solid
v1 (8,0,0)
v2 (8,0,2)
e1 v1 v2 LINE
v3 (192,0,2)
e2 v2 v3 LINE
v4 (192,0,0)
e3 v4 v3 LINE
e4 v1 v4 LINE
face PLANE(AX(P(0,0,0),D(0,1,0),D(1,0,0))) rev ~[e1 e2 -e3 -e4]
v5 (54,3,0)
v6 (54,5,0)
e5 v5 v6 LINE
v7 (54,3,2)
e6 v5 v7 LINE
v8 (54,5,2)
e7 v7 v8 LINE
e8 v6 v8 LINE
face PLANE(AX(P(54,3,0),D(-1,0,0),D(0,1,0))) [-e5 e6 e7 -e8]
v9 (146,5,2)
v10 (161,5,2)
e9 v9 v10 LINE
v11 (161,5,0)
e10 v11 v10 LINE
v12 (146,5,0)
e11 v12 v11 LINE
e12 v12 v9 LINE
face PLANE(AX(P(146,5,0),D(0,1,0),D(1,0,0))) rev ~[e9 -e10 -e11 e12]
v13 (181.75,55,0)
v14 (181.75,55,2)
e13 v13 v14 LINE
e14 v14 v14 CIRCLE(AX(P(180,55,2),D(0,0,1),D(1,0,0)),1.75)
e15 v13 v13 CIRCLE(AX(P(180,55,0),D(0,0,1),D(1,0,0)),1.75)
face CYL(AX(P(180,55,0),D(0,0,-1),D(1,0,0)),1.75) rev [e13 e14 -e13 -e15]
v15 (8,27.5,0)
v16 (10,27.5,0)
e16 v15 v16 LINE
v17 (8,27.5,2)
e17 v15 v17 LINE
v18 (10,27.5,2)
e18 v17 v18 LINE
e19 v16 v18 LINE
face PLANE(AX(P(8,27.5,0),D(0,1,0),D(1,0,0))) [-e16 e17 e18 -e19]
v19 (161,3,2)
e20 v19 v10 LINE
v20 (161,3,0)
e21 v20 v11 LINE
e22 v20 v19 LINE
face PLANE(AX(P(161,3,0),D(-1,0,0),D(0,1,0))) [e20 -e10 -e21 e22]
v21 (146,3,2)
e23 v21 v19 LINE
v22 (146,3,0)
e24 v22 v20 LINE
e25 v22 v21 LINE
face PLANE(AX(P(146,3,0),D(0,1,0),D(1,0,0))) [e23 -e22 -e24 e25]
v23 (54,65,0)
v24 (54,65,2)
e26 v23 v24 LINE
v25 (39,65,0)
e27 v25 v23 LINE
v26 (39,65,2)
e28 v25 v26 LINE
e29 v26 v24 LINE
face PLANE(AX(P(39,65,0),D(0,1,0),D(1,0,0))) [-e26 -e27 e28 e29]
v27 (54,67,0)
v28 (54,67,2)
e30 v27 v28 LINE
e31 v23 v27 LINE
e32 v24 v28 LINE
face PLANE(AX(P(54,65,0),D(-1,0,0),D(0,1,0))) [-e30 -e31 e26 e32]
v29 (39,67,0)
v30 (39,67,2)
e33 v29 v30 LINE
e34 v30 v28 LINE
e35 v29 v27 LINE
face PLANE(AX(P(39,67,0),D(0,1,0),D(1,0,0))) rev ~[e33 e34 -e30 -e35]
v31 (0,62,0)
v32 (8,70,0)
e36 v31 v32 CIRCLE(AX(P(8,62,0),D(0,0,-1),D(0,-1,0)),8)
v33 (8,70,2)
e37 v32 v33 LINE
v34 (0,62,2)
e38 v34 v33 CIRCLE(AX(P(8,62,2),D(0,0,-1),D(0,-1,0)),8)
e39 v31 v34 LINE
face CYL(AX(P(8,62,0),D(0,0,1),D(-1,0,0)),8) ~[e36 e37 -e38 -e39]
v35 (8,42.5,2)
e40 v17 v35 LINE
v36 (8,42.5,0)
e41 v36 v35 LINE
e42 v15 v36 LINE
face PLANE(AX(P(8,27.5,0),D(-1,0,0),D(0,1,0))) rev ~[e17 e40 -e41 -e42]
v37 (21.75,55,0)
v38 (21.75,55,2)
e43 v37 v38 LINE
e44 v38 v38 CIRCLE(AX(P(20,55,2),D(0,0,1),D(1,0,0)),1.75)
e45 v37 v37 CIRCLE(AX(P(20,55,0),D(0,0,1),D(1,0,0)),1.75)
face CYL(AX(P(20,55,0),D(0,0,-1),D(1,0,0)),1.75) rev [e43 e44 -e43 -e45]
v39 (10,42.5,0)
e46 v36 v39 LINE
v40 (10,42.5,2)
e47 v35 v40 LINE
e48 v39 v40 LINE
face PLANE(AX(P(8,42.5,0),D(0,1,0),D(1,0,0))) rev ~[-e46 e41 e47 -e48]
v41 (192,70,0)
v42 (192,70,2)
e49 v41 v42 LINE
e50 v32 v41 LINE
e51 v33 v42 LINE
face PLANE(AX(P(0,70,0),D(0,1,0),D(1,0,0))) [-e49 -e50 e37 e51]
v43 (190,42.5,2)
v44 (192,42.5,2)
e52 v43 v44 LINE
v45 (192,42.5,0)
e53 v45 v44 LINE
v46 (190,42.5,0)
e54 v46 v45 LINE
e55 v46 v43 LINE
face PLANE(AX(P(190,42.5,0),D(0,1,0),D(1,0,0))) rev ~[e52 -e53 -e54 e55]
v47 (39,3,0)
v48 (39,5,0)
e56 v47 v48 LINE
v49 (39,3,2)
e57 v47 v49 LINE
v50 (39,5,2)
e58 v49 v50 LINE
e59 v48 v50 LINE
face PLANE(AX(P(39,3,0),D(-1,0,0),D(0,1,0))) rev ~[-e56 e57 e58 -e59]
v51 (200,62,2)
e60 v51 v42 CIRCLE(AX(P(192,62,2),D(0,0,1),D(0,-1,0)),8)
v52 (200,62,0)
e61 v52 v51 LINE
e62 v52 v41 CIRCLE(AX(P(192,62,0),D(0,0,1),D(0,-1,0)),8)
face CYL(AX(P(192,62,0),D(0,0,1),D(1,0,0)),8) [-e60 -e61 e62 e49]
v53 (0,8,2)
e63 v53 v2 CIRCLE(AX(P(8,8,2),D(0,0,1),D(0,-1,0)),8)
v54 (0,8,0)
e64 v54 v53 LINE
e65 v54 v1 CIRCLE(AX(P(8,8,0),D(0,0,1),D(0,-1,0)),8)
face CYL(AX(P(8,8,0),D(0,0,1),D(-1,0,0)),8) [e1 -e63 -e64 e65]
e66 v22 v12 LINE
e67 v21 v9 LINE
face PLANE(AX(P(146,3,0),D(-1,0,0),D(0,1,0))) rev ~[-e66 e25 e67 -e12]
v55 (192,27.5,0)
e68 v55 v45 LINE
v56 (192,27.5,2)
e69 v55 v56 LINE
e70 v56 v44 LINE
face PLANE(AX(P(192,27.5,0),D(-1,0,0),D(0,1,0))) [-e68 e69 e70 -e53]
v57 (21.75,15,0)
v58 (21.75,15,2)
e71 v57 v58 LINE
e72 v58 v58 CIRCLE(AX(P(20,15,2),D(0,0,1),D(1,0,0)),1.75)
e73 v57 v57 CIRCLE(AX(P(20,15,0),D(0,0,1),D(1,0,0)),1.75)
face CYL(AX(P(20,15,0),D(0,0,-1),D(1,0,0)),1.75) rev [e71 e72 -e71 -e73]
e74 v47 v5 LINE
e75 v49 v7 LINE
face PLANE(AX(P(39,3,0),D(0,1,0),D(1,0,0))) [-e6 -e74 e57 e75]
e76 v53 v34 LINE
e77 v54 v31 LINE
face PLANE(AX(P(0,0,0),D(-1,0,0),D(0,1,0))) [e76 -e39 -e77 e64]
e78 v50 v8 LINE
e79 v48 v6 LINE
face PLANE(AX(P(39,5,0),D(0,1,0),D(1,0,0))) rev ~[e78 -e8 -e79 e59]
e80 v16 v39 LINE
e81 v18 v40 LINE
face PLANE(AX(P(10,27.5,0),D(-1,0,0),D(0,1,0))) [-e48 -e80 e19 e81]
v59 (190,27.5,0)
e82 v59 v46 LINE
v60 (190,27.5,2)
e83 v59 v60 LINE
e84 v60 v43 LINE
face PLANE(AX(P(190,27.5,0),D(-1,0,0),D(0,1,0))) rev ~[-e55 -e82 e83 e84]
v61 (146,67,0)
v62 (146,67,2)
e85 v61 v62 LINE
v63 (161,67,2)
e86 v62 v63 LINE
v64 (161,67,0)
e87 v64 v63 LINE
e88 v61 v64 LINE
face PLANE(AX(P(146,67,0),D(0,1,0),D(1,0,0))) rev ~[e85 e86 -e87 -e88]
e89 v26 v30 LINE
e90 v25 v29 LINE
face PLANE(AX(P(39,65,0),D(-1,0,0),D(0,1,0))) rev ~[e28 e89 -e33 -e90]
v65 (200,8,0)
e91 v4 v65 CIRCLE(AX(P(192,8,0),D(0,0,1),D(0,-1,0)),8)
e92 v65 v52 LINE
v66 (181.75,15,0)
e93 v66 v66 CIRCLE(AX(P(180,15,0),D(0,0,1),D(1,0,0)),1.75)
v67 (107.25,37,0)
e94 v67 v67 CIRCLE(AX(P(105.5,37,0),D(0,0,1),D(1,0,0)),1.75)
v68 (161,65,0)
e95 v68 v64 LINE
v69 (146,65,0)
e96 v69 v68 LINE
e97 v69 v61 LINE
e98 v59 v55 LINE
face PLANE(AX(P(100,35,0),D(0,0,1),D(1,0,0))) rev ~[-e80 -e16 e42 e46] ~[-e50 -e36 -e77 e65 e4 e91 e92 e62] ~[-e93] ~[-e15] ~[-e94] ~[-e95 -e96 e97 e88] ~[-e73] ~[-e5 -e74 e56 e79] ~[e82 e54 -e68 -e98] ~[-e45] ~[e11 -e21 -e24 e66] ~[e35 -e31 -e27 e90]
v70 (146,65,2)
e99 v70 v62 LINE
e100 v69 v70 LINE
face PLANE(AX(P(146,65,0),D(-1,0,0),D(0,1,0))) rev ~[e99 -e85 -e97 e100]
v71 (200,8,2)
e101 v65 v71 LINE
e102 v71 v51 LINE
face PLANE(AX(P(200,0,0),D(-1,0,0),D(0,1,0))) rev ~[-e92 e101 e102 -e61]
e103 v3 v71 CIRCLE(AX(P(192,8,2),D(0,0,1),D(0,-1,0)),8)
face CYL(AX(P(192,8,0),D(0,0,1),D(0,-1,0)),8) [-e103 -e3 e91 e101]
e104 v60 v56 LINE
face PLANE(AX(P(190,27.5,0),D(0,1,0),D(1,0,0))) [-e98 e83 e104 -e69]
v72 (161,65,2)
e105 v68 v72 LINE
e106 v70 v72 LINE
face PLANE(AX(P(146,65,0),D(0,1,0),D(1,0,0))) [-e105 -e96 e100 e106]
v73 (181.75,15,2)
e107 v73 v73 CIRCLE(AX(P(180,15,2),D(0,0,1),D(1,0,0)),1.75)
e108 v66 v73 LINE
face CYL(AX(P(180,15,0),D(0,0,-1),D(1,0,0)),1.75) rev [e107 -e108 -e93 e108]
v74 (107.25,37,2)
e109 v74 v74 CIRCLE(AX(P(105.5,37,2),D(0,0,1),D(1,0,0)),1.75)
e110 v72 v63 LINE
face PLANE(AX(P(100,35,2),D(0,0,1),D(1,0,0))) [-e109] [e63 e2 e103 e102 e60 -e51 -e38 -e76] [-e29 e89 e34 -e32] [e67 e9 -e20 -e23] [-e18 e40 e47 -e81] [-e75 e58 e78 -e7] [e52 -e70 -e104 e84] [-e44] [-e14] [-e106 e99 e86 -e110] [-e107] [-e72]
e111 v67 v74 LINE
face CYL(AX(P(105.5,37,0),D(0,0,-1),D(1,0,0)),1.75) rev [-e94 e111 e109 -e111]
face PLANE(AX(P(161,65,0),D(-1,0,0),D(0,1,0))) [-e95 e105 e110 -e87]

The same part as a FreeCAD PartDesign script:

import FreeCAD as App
import Part
import Sketcher

V = App.Vector


def edges_at(feature, points):
    """Names of the edges that pass closest to the given points."""
    edges = feature.Shape.Edges
    near = lambda p: min(range(len(edges)), key=lambda i: edges[i].distToShape(Part.Vertex(*p))[0])
    return sorted({f"Edge{near(p) + 1}" for p in points})


def add_polygon(sketch, points):
    """Adds a closed chain of lines whose ends are joined by coincident constraints."""
    first, n = sketch.GeometryCount, len(points)
    for a, b in zip(points, points[1:] + points[:1]):
        sketch.addGeometry(Part.LineSegment(App.Vector(*a, 0), App.Vector(*b, 0)), False)
    for i in range(n):
        sketch.addConstraint(Sketcher.Constraint("Coincident", first + i, 2, first + (i + 1) % n, 1))

doc = App.newDocument("Part")
body = doc.addObject("PartDesign::Body", "Body")

# Sketch on XY plane
sketch1 = doc.addObject("Sketcher::SketchObject", "Sketch")
body.addObject(sketch1)
sketch1.AttachmentSupport = (doc.XY_Plane, [""])
sketch1.MapMode = "FlatFace"
add_polygon(sketch1, [(0, 70), (0, 0), (200, 0), (200, 70)])  # lines 0-3
sketch1.addConstraint([
    Sketcher.Constraint("Vertical", 0),
    Sketcher.Constraint("Horizontal", 1),
    Sketcher.Constraint("Vertical", 2),
    Sketcher.Constraint("Horizontal", 3),
    Sketcher.Constraint("Coincident", 0, 2, -1, 1),
    Sketcher.Constraint("DistanceX", 1, 1, 1, 2, 200.0),
    Sketcher.Constraint("DistanceY", 0, 2, 0, 1, 70.0),
])
pad1 = doc.addObject("PartDesign::Pad", "Pad")
body.addObject(pad1)
pad1.Profile = sketch1
pad1.Length = 2
doc.recompute()

fillet = doc.addObject("PartDesign::Fillet", "Fillet")
body.addObject(fillet)
fillet.Base = (pad1, edges_at(pad1, [
    (0, 70, 1),
    (200, 70, 1),
    (0, 0, 1),
    (200, 0, 1),
]))
fillet.Radius = 8

# Sketch on XY plane
sketch2 = doc.addObject("Sketcher::SketchObject", "Sketch001")
body.addObject(sketch2)
sketch2.AttachmentSupport = (doc.XY_Plane, [""])
sketch2.MapMode = "FlatFace"
sketch2.addGeometry(Part.Circle(V(20, 55, 0), V(0, 0, 1), 1.75), False)  # 0
sketch2.addGeometry(Part.Circle(V(20, 15, 0), V(0, 0, 1), 1.75), False)  # 1
sketch2.addGeometry(Part.Circle(V(180, 55, 0), V(0, 0, 1), 1.75), False)  # 2
sketch2.addGeometry(Part.Circle(V(180, 15, 0), V(0, 0, 1), 1.75), False)  # 3
sketch2.addGeometry(Part.Circle(V(105.5, 37, 0), V(0, 0, 1), 1.75), False)  # 4
add_polygon(sketch2, [(39, 67), (39, 65), (54, 65), (54, 67)])  # lines 5-8
add_polygon(sketch2, [(39, 5), (39, 3), (54, 3), (54, 5)])  # lines 9-12
add_polygon(sketch2, [(146, 67), (146, 65), (161, 65), (161, 67)])  # lines 13-16
add_polygon(sketch2, [(146, 5), (146, 3), (161, 3), (161, 5)])  # lines 17-20
add_polygon(sketch2, [(8, 42.5), (8, 27.5), (10, 27.5), (10, 42.5)])  # lines 21-24
add_polygon(sketch2, [(190, 42.5), (190, 27.5), (192, 27.5), (192, 42.5)])  # lines 25-28
sketch2.addConstraint([
    Sketcher.Constraint("Vertical", 5),
    Sketcher.Constraint("Horizontal", 6),
    Sketcher.Constraint("Vertical", 7),
    Sketcher.Constraint("Horizontal", 8),
    Sketcher.Constraint("Vertical", 9),
    Sketcher.Constraint("Horizontal", 10),
    Sketcher.Constraint("Vertical", 11),
    Sketcher.Constraint("Horizontal", 12),
    Sketcher.Constraint("Vertical", 13),
    Sketcher.Constraint("Horizontal", 14),
    Sketcher.Constraint("Vertical", 15),
    Sketcher.Constraint("Horizontal", 16),
    Sketcher.Constraint("Vertical", 17),
    Sketcher.Constraint("Horizontal", 18),
    Sketcher.Constraint("Vertical", 19),
    Sketcher.Constraint("Horizontal", 20),
    Sketcher.Constraint("Vertical", 21),
    Sketcher.Constraint("Horizontal", 22),
    Sketcher.Constraint("Vertical", 23),
    Sketcher.Constraint("Horizontal", 24),
    Sketcher.Constraint("Vertical", 25),
    Sketcher.Constraint("Horizontal", 26),
    Sketcher.Constraint("Vertical", 27),
    Sketcher.Constraint("Horizontal", 28),
    Sketcher.Constraint("Equal", 0, 1),
    Sketcher.Constraint("Equal", 1, 2),
    Sketcher.Constraint("Equal", 2, 3),
    Sketcher.Constraint("Equal", 3, 4),
    Sketcher.Constraint("Horizontal", 0, 3, 2, 3),
    Sketcher.Constraint("Horizontal", 1, 3, 3, 3),
    Sketcher.Constraint("Horizontal", 6, 2, 13, 2),
    Sketcher.Constraint("Horizontal", 8, 2, 15, 2),
    Sketcher.Constraint("Horizontal", 10, 2, 17, 2),
    Sketcher.Constraint("Horizontal", 12, 2, 19, 2),
    Sketcher.Constraint("Horizontal", 22, 2, 25, 2),
    Sketcher.Constraint("Horizontal", 24, 2, 27, 2),
    Sketcher.Constraint("Vertical", 0, 3, 1, 3),
    Sketcher.Constraint("Vertical", 2, 3, 3, 3),
    Sketcher.Constraint("Vertical", 8, 2, 9, 2),
    Sketcher.Constraint("Vertical", 7, 2, 10, 2),
    Sketcher.Constraint("Vertical", 16, 2, 17, 2),
    Sketcher.Constraint("Vertical", 15, 2, 18, 2),
    Sketcher.Constraint("Equal", 12, 14),
    Sketcher.Constraint("Equal", 24, 26),
    Sketcher.Constraint("Equal", 28, 5),
    Sketcher.Constraint("Equal", 7, 9),
    Sketcher.Constraint("Equal", 20, 21),
    Sketcher.Constraint("Diameter", 0, 3.5),
    Sketcher.Constraint("DistanceX", 6, 1, 6, 2, 15.0),
    Sketcher.Constraint("DistanceX", 22, 1, 22, 2, 2.0),
    Sketcher.Constraint("DistanceX", -1, 1, 0, 3, 20.0),
    Sketcher.Constraint("DistanceY", -1, 1, 0, 3, 55.0),
    Sketcher.Constraint("DistanceY", -1, 1, 1, 3, 15.0),
    Sketcher.Constraint("DistanceX", -1, 1, 2, 3, 180.0),
    Sketcher.Constraint("DistanceY", -1, 1, 4, 3, 37.0),
    Sketcher.Constraint("DistanceX", -1, 1, 5, 2, 39.0),
    Sketcher.Constraint("DistanceY", -1, 1, 5, 2, 65.0),
    Sketcher.Constraint("DistanceY", -1, 1, 9, 2, 3.0),
    Sketcher.Constraint("DistanceX", -1, 1, 13, 2, 146.0),
    Sketcher.Constraint("DistanceX", -1, 1, 21, 2, 8.0),
    Sketcher.Constraint("DistanceX", -1, 1, 25, 2, 190.0),
    Sketcher.Constraint("DistanceX", -1, 1, 4, 3, 105.5),
    Sketcher.Constraint("DistanceY", -1, 1, 21, 2, 27.5),
])
pocket1 = doc.addObject("PartDesign::Pocket", "Pocket")
body.addObject(pocket1)
pocket1.Profile = sketch2
pocket1.Length = 2
pocket1.Reversed = True

doc.recompute()
